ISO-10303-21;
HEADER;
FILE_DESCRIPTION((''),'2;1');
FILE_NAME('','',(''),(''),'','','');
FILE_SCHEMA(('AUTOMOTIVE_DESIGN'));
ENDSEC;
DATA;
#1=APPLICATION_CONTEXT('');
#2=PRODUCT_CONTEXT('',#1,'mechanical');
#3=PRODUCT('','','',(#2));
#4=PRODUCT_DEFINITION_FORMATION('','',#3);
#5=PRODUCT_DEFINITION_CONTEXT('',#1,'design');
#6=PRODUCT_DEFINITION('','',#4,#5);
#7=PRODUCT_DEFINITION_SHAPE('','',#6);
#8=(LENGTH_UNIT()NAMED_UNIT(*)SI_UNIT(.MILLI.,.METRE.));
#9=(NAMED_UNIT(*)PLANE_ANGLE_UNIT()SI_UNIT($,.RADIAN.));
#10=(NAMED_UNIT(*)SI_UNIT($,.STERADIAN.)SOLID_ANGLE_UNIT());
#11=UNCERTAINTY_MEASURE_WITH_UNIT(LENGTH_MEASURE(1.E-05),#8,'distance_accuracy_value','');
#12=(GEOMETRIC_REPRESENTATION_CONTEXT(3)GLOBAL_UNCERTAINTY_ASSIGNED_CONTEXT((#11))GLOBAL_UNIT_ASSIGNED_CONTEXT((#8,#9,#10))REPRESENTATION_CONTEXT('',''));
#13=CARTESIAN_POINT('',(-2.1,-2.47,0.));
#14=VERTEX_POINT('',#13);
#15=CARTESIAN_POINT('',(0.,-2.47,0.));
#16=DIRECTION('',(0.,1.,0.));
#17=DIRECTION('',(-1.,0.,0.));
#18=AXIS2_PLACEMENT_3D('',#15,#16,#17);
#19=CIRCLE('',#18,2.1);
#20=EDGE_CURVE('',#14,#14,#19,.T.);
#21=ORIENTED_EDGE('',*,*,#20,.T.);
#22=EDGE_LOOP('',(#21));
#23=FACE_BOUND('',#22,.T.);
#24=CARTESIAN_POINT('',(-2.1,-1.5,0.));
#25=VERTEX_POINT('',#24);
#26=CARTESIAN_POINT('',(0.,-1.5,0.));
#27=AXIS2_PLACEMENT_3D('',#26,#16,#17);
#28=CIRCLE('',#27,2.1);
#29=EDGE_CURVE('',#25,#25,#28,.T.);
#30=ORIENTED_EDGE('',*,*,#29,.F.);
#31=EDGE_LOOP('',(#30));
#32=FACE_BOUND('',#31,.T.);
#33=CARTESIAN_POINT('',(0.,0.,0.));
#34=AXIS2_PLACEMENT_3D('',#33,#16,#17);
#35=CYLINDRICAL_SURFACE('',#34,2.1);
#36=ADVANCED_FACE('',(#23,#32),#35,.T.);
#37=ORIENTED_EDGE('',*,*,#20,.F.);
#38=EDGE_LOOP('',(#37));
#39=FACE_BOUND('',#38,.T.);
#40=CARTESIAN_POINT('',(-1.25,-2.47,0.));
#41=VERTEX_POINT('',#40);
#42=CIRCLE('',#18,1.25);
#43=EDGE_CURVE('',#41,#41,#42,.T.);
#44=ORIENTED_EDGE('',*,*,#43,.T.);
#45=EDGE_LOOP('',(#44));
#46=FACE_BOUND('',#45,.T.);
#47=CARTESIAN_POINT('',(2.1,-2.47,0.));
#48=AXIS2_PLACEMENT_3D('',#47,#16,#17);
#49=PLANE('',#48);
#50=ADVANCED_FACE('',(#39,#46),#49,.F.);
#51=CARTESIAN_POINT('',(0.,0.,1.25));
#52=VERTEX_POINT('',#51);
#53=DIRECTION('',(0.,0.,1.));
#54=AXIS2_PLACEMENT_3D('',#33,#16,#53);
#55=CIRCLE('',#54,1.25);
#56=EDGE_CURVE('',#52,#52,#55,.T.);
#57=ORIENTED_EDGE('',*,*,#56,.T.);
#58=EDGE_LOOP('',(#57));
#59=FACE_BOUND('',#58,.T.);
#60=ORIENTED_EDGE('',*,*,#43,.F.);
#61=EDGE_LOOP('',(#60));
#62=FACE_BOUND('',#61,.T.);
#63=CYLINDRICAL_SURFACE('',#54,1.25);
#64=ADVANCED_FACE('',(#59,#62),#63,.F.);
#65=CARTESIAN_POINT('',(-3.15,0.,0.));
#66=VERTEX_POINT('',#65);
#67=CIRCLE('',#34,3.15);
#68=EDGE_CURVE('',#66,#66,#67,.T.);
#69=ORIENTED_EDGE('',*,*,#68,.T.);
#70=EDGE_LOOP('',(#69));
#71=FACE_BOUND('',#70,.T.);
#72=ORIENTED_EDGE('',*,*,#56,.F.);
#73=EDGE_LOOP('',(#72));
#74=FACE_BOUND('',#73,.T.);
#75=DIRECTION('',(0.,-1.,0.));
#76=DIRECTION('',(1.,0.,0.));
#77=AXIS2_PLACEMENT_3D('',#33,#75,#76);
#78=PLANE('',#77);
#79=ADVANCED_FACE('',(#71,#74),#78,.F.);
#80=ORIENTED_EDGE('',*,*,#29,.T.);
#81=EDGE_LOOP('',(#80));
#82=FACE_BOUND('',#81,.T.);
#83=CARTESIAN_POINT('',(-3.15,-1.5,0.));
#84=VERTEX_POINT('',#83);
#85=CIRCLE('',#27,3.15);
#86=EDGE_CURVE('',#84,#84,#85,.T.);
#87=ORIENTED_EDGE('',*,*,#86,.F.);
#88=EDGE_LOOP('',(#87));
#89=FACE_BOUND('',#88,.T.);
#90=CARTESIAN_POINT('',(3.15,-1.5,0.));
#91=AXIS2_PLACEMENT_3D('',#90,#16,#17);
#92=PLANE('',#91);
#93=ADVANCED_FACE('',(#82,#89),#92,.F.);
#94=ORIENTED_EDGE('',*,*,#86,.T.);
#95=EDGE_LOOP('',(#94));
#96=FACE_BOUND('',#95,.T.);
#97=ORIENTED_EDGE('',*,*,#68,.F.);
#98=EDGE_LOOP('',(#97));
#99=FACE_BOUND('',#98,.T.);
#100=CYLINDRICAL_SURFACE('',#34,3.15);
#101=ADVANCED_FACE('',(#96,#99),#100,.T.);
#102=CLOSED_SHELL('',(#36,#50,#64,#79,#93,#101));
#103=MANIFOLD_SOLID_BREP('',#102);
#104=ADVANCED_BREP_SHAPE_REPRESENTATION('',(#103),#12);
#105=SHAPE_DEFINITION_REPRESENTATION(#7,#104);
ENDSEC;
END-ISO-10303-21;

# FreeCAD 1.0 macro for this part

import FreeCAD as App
import Part
import Sketcher
from FreeCAD import Vector
Q = App.Units.Quantity


def add_polygon(sketch, points):
    """Adds a closed chain of lines whose ends are joined by coincident constraints."""
    first, n = sketch.GeometryCount, len(points)
    for a, b in zip(points, points[1:] + points[:1]):
        sketch.addGeometry(Part.LineSegment(App.Vector(*a, 0), App.Vector(*b, 0)), False)
    for i in range(n):
        sketch.addConstraint(Sketcher.Constraint("Coincident", first + i, 2, first + (i + 1) % n, 1))

doc = App.newDocument("Part")
body = doc.addObject("PartDesign::Body", "Body")

sketch1 = body.newObject("Sketcher::SketchObject", "Sketch")
sketch1.AttachmentSupport = (doc.getObject("XY_Plane"), [""])
sketch1.MapMode = "FlatFace"
add_polygon(sketch1, [(3.1, 0), (0, 0), (0, -2.5), (2.1, -2.5), (2.1, -1.5), (3.1, -1.5)])
sketch1.addConstraint(Sketcher.Constraint("Horizontal", 0))
sketch1.addConstraint(Sketcher.Constraint("Vertical", 1))
sketch1.addConstraint(Sketcher.Constraint("Horizontal", 2))
sketch1.addConstraint(Sketcher.Constraint("Vertical", 3))
sketch1.addConstraint(Sketcher.Constraint("Horizontal", 4))
sketch1.addConstraint(Sketcher.Constraint("Vertical", 5))
sketch1.addConstraint(Sketcher.Constraint("Coincident", 0, 2, -1, 1))
sketch1.addConstraint(Sketcher.Constraint("DistanceX", 2, 1, 2, 2, Q("2.1 mm")))
sketch1.addConstraint(Sketcher.Constraint("DistanceY", 5, 1, 5, 2, Q("1.5 mm")))
sketch1.addConstraint(Sketcher.Constraint("DistanceX", 0, 2, 0, 1, Q("3.15 mm")))
sketch1.addConstraint(Sketcher.Constraint("DistanceY", 1, 2, 1, 1, Q("2.47 mm")))
revolution = body.newObject("PartDesign::Revolution", "Revolution")
revolution.Profile = sketch1
revolution.ReferenceAxis = (sketch1, ["V_Axis"])
revolution.Angle = 360

sketch2 = body.newObject("Sketcher::SketchObject", "Sketch001")
sketch2.AttachmentSupport = (doc.getObject("XZ_Plane"), [""])
sketch2.MapMode = "FlatFace"
sketch2.addGeometry(Part.Circle(Vector(0, 0, 0), Vector(0, 0, 1), 1.2), False)
sketch2.addConstraint(Sketcher.Constraint("Coincident", 0, 3, -1, 1))
sketch2.addConstraint(Sketcher.Constraint("Diameter", 0, Q("2.5 mm")))
doc.recompute()
hole = body.newObject("PartDesign::Hole", "Hole")
hole.Profile = sketch2
hole.ThreadType = "None"
hole.Diameter = 2.5
hole.DepthType = "Dimension"
hole.Depth = 10
hole.DrillPoint = "Angled"
hole.DrillPointAngle = 118
hole.Reversed = True

doc.recompute()
